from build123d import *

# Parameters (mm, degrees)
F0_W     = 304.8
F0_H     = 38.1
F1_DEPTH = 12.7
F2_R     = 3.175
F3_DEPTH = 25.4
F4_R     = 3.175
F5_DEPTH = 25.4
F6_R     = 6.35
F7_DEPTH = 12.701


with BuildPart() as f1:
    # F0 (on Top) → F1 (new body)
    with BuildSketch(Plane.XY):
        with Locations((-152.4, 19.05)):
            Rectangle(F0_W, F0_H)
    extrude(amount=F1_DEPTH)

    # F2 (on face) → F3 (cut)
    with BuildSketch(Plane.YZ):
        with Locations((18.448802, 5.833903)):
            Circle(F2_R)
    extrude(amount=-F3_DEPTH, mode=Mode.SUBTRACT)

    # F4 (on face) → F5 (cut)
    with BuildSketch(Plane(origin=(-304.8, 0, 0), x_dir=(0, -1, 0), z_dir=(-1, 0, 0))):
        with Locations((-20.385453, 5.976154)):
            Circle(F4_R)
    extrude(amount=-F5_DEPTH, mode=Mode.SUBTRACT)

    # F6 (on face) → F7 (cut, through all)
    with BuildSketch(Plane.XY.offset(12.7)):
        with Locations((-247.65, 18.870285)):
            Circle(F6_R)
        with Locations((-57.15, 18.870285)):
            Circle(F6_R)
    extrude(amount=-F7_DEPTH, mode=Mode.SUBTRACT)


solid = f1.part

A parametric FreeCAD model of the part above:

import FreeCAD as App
import Part
import Sketcher
Q = App.Units.Quantity

doc = App.newDocument("Part")
params = doc.addObject("Spreadsheet::Sheet", "Params")
for row, (alias, value) in enumerate([
    ("sketch1_width", "12 in"),
    ("sketch1_height", "1.5 in"),
    ("pad1_length", "0.5 in"),
    ("sketch2_diameter", "0.25 in"),
    ("pocket1_length", "1 in"),
    ("sketch3_diameter", "0.25 in"),
    ("pocket2_length", "1 in"),
    ("sketch4_diameter", "0.5 in"),
], start=1):
    params.set(f"A{row}", alias)
    params.set(f"B{row}", "=" + value)
    params.setAlias(f"B{row}", alias)

body = doc.addObject("PartDesign::Body", "Body")

# Sketch on XY plane
sketch1 = body.newObject("Sketcher::SketchObject", "Sketch")
sketch1.AttachmentSupport = (doc.getObject("XY_Plane"), [""])
sketch1.MapMode = "FlatFace"
sketch1.addGeometry([
    Part.LineSegment(App.Vector(-305, 38, 0), App.Vector(-305, 0, 0)),
    Part.LineSegment(App.Vector(-305, 0, 0), App.Vector(0, 0, 0)),
    Part.LineSegment(App.Vector(0, 0, 0), App.Vector(0, 38, 0)),
    Part.LineSegment(App.Vector(0, 38, 0), App.Vector(-305, 38, 0)),
], False)
sketch1.addConstraint([
    Sketcher.Constraint("Coincident", 0, 2, 1, 1),
    Sketcher.Constraint("Coincident", 1, 2, 2, 1),
    Sketcher.Constraint("Coincident", 2, 2, 3, 1),
    Sketcher.Constraint("Coincident", 3, 2, 0, 1),
    Sketcher.Constraint("Vertical", 0),
    Sketcher.Constraint("Horizontal", 1),
    Sketcher.Constraint("Vertical", 2),
    Sketcher.Constraint("Horizontal", 3),
    Sketcher.Constraint("Coincident", 1, 2, -1, 1),
    Sketcher.Constraint("DistanceX", 1, 1, 1, 2, Q("12 in")),
    Sketcher.Constraint("DistanceY", 0, 2, 0, 1, Q("1.5 in")),
])
sketch1.setExpression("Constraints[9]", "Params.sketch1_width")
sketch1.setExpression("Constraints[10]", "Params.sketch1_height")
pad1 = body.newObject("PartDesign::Pad", "Pad")
pad1.Profile = sketch1
pad1.setExpression("Length", "Params.pad1_length")

# Sketch on YZ plane
sketch2 = body.newObject("Sketcher::SketchObject", "Sketch001")
sketch2.AttachmentSupport = (doc.getObject("YZ_Plane"), [""])
sketch2.MapMode = "FlatFace"
sketch2.addGeometry(Part.Circle(App.Vector(18.4, 5.8, 0), App.Vector(0, 0, 1), 3.2), False)
sketch2.addConstraint([
    Sketcher.Constraint("Diameter", 0, Q("0.25 in")),
    Sketcher.Constraint("DistanceX", -1, 1, 0, 3, 18.448802),
    Sketcher.Constraint("DistanceY", -1, 1, 0, 3, 5.833903),
])
sketch2.setExpression("Constraints[0]", "Params.sketch2_diameter")
pocket1 = body.newObject("PartDesign::Pocket", "Pocket")
pocket1.Profile = sketch2
pocket1.setExpression("Length", "Params.pocket1_length")

# Sketch on YZ plane
sketch3 = body.newObject("Sketcher::SketchObject", "Sketch002")
sketch3.AttachmentSupport = (doc.getObject("YZ_Plane"), [""])
sketch3.MapMode = "FlatFace"
sketch3.AttachmentOffset = App.Placement(App.Vector(0, 0, -12 * 25.4), App.Rotation())
sketch3.addGeometry(Part.Circle(App.Vector(20.4, 6, 0), App.Vector(0, 0, 1), 3.2), False)
sketch3.addConstraint([
    Sketcher.Constraint("Diameter", 0, Q("0.25 in")),
    Sketcher.Constraint("DistanceX", -1, 1, 0, 3, 20.385453),
    Sketcher.Constraint("DistanceY", -1, 1, 0, 3, 5.976154),
])
sketch3.setExpression("Constraints[0]", "Params.sketch3_diameter")
pocket2 = body.newObject("PartDesign::Pocket", "Pocket001")
pocket2.Profile = sketch3
pocket2.setExpression("Length", "Params.pocket2_length")
pocket2.Reversed = True

# Sketch on XY plane
sketch4 = body.newObject("Sketcher::SketchObject", "Sketch003")
sketch4.AttachmentSupport = (doc.getObject("XY_Plane"), [""])
sketch4.MapMode = "FlatFace"
sketch4.AttachmentOffset = App.Placement(App.Vector(0, 0, 0.5 * 25.4), App.Rotation())
sketch4.addGeometry([
    Part.Circle(App.Vector(-248, 19, 0), App.Vector(0, 0, 1), 6),
    Part.Circle(App.Vector(-57, 19, 0), App.Vector(0, 0, 1), 6),
], False)
sketch4.addConstraint([
    Sketcher.Constraint("Equal", 0, 1),
    Sketcher.Constraint("Horizontal", 0, 3, 1, 3),
    Sketcher.Constraint("Diameter", 0, Q("0.5 in")),
    Sketcher.Constraint("DistanceX", 0, 3, 1, 3, Q("7.5 in")),
    Sketcher.Constraint("DistanceX", 0, 3, -1, 1, Q("9.75 in")),
    Sketcher.Constraint("DistanceY", -1, 1, 0, 3, 18.870285),
])
sketch4.setExpression("Constraints[2]", "Params.sketch4_diameter")
pocket3 = body.newObject("PartDesign::Pocket", "Pocket002")
pocket3.Profile = sketch4
pocket3.Type = "ThroughAll"

doc.recompute()
